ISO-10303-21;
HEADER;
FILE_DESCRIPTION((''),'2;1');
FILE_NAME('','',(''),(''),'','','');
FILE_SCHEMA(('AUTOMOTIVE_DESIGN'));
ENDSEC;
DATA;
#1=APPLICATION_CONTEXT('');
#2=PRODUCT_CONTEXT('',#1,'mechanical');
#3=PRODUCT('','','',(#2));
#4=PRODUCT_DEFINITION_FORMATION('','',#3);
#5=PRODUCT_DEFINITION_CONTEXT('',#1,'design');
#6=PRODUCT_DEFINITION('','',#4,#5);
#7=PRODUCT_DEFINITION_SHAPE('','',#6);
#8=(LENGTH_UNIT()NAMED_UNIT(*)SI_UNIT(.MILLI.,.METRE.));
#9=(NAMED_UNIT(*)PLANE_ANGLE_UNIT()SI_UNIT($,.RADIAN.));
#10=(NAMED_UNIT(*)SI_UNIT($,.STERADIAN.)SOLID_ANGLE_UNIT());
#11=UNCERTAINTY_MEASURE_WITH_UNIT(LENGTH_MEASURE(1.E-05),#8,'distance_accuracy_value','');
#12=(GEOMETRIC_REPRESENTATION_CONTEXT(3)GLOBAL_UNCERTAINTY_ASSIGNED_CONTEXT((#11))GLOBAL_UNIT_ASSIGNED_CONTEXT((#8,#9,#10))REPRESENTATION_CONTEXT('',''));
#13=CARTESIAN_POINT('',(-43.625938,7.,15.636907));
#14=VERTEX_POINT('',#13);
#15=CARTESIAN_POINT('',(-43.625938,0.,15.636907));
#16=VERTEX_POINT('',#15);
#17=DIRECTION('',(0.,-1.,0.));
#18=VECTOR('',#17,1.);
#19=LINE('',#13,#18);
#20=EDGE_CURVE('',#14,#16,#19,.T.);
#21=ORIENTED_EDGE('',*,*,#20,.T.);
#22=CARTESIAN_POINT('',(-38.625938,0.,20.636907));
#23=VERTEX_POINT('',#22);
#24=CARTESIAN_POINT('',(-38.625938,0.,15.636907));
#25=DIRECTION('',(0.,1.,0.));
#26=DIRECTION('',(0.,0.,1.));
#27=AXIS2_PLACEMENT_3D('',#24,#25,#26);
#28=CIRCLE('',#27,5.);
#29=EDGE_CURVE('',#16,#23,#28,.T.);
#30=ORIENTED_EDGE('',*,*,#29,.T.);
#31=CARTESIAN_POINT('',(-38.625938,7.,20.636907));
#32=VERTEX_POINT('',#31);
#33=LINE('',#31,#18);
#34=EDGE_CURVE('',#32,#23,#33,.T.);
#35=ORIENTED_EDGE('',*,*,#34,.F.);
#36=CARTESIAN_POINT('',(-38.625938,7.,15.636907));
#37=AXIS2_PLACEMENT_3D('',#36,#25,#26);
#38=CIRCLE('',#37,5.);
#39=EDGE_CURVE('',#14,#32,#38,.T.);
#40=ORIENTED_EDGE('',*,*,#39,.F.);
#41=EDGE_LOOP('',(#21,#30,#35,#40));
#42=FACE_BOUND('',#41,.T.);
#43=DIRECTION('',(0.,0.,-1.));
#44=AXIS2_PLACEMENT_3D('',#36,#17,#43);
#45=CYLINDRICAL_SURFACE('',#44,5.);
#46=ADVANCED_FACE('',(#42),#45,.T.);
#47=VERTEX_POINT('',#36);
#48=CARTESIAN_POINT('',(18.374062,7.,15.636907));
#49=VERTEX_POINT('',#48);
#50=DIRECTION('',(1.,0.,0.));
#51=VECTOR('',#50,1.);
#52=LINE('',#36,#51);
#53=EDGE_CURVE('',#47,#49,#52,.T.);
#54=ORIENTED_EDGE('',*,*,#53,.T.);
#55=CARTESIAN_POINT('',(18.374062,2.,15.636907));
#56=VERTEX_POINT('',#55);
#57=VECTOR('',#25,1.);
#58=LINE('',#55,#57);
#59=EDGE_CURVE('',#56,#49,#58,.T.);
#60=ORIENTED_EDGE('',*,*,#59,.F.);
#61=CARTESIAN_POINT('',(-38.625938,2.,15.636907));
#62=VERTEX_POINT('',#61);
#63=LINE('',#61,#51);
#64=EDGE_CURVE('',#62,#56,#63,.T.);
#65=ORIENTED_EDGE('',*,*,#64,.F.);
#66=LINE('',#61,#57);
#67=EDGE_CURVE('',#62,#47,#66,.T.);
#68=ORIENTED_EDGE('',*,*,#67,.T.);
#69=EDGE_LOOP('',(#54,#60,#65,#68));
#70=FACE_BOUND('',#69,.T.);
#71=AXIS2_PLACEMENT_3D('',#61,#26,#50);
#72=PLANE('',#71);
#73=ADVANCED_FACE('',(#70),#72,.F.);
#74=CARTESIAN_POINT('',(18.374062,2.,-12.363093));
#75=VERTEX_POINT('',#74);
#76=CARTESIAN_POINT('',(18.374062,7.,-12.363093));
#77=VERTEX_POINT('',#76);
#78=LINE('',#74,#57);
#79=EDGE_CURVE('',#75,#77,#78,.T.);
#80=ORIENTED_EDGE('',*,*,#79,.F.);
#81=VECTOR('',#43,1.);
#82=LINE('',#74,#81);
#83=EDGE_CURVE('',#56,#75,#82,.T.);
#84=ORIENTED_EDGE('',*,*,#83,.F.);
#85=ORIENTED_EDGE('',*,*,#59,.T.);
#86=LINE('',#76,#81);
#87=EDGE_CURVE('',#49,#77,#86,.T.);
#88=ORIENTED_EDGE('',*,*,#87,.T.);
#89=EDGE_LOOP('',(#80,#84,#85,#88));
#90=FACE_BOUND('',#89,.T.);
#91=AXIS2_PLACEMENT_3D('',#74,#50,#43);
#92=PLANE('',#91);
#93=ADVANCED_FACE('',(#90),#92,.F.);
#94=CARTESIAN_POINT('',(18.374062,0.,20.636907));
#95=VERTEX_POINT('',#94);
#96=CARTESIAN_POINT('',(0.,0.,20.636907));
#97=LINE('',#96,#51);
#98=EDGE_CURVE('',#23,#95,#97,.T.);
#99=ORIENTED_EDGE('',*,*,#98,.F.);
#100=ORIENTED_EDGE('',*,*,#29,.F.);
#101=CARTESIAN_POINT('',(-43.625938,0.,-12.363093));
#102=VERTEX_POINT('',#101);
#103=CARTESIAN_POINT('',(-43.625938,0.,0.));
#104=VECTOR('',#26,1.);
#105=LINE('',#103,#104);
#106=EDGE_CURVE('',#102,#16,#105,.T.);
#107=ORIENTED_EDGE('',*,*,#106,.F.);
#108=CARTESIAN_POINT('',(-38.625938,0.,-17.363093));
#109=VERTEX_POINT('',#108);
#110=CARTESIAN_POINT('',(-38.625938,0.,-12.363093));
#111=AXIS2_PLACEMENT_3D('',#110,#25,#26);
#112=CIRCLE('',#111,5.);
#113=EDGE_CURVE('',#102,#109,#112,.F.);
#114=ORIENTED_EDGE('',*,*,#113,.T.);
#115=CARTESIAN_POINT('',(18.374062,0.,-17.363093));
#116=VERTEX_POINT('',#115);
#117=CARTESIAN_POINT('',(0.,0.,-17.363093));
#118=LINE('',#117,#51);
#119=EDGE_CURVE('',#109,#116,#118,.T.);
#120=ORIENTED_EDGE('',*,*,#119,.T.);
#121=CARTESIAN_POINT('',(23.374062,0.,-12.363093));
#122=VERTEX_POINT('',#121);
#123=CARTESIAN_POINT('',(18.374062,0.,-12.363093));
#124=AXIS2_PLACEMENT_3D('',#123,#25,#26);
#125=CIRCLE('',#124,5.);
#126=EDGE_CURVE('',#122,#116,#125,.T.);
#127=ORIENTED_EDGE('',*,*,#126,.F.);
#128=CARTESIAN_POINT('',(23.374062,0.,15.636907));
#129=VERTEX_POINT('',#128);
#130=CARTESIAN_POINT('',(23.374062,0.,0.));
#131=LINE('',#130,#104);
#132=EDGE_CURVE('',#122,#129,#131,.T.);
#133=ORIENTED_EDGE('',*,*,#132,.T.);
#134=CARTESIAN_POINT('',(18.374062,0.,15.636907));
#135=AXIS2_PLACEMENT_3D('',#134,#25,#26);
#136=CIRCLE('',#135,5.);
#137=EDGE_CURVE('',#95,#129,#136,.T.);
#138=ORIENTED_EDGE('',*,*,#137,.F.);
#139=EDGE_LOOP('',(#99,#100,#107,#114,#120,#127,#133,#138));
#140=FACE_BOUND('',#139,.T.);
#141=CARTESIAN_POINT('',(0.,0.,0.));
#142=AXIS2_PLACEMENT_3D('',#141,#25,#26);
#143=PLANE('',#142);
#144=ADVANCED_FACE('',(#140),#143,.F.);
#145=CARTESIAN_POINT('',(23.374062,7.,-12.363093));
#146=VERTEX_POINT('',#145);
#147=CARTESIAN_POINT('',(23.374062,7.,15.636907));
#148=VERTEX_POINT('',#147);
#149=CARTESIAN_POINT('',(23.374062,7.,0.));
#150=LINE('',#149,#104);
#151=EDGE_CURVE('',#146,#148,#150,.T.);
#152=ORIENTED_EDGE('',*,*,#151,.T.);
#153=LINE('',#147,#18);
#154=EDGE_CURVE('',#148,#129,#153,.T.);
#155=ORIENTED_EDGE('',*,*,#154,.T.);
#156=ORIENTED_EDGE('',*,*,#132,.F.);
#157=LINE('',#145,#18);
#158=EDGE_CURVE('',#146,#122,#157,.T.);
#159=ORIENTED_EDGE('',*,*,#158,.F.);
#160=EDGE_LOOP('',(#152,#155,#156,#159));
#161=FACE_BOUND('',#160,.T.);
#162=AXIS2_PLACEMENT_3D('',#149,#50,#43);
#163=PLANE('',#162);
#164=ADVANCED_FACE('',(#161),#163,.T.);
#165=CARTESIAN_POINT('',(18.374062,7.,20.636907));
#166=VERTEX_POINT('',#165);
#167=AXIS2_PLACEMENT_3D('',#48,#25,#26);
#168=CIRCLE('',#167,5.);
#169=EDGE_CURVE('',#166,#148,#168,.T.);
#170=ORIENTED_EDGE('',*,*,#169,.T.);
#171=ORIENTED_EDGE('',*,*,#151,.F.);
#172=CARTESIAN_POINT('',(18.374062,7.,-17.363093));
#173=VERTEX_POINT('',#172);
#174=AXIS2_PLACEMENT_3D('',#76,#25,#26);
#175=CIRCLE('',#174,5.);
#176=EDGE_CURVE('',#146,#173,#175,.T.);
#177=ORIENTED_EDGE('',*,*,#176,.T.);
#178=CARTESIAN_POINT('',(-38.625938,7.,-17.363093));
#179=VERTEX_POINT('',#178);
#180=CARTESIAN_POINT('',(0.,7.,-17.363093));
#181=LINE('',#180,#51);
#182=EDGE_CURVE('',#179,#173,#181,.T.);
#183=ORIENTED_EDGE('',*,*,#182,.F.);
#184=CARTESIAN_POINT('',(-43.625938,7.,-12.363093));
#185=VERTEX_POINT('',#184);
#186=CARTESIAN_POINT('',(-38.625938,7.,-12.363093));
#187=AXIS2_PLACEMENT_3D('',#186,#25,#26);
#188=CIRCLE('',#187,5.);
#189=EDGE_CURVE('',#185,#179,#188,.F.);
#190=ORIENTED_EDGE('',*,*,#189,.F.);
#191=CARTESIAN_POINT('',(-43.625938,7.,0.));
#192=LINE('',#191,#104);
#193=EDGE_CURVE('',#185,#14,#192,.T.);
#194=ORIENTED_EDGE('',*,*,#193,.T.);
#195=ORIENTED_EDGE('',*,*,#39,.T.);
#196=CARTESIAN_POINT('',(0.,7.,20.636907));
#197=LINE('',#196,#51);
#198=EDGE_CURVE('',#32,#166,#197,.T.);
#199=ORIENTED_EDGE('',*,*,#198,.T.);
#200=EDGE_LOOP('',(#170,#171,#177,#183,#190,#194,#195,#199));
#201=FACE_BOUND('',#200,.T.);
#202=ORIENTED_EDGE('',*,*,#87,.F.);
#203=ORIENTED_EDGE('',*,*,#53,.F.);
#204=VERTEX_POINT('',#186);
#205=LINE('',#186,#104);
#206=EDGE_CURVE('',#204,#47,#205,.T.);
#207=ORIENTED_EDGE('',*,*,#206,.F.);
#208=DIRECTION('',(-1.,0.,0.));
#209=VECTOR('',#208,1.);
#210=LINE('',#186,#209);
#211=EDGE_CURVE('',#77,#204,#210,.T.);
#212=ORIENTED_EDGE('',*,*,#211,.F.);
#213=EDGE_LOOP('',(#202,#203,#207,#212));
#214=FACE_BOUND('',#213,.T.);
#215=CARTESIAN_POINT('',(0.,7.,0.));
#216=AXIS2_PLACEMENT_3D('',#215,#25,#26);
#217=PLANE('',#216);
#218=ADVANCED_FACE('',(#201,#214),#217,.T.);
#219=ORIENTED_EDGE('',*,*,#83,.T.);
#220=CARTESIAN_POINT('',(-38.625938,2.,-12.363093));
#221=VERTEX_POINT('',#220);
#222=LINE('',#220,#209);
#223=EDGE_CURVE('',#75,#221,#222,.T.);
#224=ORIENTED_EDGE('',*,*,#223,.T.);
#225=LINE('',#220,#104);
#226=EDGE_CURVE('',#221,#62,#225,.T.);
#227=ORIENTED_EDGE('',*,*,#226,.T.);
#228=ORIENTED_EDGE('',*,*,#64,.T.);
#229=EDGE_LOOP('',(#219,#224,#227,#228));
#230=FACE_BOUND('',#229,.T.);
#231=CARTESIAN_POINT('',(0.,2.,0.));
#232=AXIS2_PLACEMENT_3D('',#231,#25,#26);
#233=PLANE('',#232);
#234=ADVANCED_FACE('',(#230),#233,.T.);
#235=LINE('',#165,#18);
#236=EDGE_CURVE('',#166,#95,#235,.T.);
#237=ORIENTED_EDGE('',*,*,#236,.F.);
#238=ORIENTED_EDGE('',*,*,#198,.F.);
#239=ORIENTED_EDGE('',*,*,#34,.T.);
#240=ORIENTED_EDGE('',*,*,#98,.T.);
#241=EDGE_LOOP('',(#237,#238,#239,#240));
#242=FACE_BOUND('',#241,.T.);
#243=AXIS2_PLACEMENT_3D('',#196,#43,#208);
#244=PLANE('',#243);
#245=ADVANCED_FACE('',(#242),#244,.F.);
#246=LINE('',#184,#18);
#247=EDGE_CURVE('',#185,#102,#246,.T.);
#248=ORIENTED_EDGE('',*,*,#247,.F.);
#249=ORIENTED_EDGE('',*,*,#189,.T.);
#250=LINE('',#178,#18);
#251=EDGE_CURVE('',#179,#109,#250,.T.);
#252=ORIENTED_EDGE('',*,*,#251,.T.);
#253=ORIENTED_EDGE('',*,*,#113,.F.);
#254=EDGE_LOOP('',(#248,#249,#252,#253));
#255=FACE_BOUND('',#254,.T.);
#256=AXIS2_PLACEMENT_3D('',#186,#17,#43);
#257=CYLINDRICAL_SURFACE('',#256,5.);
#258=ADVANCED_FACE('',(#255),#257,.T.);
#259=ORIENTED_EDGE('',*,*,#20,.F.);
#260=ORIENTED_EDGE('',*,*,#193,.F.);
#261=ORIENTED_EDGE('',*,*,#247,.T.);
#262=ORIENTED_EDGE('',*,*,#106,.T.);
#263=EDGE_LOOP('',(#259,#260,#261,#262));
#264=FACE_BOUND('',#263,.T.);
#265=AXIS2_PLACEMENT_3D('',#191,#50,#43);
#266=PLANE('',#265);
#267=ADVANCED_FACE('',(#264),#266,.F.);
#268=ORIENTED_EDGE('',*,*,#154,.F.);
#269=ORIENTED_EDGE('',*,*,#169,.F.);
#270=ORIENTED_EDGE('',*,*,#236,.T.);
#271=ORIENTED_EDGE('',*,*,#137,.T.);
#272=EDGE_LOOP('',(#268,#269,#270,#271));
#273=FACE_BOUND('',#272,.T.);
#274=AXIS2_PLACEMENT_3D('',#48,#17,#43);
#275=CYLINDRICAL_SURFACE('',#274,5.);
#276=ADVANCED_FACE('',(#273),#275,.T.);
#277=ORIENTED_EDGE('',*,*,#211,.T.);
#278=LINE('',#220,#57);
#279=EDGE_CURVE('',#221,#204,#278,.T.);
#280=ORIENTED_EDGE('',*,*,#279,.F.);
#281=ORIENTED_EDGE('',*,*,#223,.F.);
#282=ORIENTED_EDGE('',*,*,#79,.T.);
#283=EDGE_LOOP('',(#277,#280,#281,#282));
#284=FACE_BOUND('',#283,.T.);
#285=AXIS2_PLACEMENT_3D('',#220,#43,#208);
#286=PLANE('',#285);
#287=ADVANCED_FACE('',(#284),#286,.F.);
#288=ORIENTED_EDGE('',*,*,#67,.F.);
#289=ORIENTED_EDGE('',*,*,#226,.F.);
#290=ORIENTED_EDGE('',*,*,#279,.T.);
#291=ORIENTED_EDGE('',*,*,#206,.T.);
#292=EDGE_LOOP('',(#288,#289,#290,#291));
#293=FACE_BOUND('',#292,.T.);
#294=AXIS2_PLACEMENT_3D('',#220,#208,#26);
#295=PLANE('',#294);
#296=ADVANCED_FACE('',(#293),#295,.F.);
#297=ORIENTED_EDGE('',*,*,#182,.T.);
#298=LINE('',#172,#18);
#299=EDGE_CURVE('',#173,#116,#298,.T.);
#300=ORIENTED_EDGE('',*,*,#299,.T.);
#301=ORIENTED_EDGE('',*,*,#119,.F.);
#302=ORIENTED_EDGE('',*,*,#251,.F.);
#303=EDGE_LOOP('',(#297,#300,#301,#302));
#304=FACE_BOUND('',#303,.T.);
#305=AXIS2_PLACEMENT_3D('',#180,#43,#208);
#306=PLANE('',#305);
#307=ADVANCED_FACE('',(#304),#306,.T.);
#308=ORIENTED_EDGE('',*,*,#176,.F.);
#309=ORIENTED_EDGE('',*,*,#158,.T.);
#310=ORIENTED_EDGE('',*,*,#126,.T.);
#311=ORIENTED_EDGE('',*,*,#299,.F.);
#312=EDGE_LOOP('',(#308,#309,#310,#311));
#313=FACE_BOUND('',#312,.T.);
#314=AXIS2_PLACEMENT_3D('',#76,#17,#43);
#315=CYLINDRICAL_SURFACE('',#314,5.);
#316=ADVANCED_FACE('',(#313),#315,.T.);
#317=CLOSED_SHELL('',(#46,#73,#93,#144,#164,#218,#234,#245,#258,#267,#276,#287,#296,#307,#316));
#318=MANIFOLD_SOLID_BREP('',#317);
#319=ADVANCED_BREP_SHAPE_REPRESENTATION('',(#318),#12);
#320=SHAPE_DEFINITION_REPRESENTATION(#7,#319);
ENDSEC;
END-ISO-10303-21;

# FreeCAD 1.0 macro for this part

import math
import FreeCAD as App
import Part
import Sketcher

V = App.Vector


def add_polygon(sketch, points):
    """Adds a closed chain of lines whose ends are joined by coincident constraints."""
    first, n = sketch.GeometryCount, len(points)
    for a, b in zip(points, points[1:] + points[:1]):
        sketch.addGeometry(Part.LineSegment(App.Vector(*a, 0), App.Vector(*b, 0)), False)
    for i in range(n):
        sketch.addConstraint(Sketcher.Constraint("Coincident", first + i, 2, first + (i + 1) % n, 1))

doc = App.newDocument("Part")
params = doc.addObject("Spreadsheet::Sheet", "Params")
for row, (alias, value) in enumerate([
    ("sketch1_radius", "5 mm"),
    ("sketch1_width", "57 mm"),
    ("sketch1_height", "28 mm"),
    ("pad1_length", "7 mm"),
    ("sketch2_width", "57 mm"),
    ("sketch2_height", "28 mm"),
    ("pocket1_length", "5 mm"),
], start=1):
    params.set(f"A{row}", alias)
    params.set(f"B{row}", "=" + value)
    params.setAlias(f"B{row}", alias)

body = doc.addObject("PartDesign::Body", "Body")

# Sketch on XZ plane
sketch1 = body.newObject("Sketcher::SketchObject", "Sketch")
sketch1.AttachmentSupport = (doc.getObject("XZ_Plane"), [""])
sketch1.MapMode = "FlatFace"
sketch1.addGeometry([
    Part.LineSegment(V(-44, -12, 0), V(-44, 16, 0)),  # 0
    Part.ArcOfCircle(Part.Circle(V(-39, 16, 0), V(0, 0, 1), 5), math.radians(90), math.radians(180)),  # 1
    Part.LineSegment(V(-39, 21, 0), V(18, 21, 0)),  # 2
    Part.ArcOfCircle(Part.Circle(V(18, 16, 0), V(0, 0, 1), 5), math.radians(0), math.radians(90)),  # 3
    Part.LineSegment(V(23, 16, 0), V(23, -12, 0)),  # 4
    Part.ArcOfCircle(Part.Circle(V(18, -12, 0), V(0, 0, 1), 5), math.radians(-90), math.radians(0)),  # 5
    Part.LineSegment(V(18, -17, 0), V(-39, -17, 0)),  # 6
    Part.ArcOfCircle(Part.Circle(V(-39, -12, 0), V(0, 0, 1), 5), math.radians(180), math.radians(270)),  # 7
], False)
sketch1.addConstraint([
    Sketcher.Constraint("Tangent", 0, 2, 1, 2),
    Sketcher.Constraint("Tangent", 1, 1, 2, 1),
    Sketcher.Constraint("Tangent", 2, 2, 3, 2),
    Sketcher.Constraint("Tangent", 3, 1, 4, 1),
    Sketcher.Constraint("Tangent", 4, 2, 5, 2),
    Sketcher.Constraint("Tangent", 5, 1, 6, 1),
    Sketcher.Constraint("Tangent", 6, 2, 7, 2),
    Sketcher.Constraint("Tangent", 7, 1, 0, 1),
    Sketcher.Constraint("Vertical", 0),
    Sketcher.Constraint("Horizontal", 2),
    Sketcher.Constraint("Vertical", 4),
    Sketcher.Constraint("Horizontal", 6),
    Sketcher.Constraint("Equal", 1, 3),
    Sketcher.Constraint("Equal", 3, 5),
    Sketcher.Constraint("Equal", 5, 7),
    Sketcher.Constraint("Radius", 1, 5.0),
    Sketcher.Constraint("DistanceX", 2, 1, 2, 2, 57.0),
    Sketcher.Constraint("DistanceY", 0, 1, 0, 2, 28.0),
    Sketcher.Constraint("DistanceX", 1, 3, -1, 1, 38.625938),
    Sketcher.Constraint("DistanceY", -1, 1, 1, 3, 15.636907),
])
sketch1.setExpression("Constraints[15]", "Params.sketch1_radius")
sketch1.setExpression("Constraints[16]", "Params.sketch1_width")
sketch1.setExpression("Constraints[17]", "Params.sketch1_height")
pad1 = body.newObject("PartDesign::Pad", "Pad")
pad1.Profile = sketch1
pad1.setExpression("Length", "Params.pad1_length")
pad1.Reversed = True

# Sketch on XZ plane
sketch2 = body.newObject("Sketcher::SketchObject", "Sketch001")
sketch2.AttachmentSupport = (doc.getObject("XZ_Plane"), [""])
sketch2.MapMode = "FlatFace"
sketch2.AttachmentOffset = App.Placement(V(0, 0, -7), App.Rotation())
add_polygon(sketch2, [(-39, -12), (-39, 16), (18, 16), (18, -12)])  # lines 0-3
sketch2.addConstraint([
    Sketcher.Constraint("Vertical", 0),
    Sketcher.Constraint("Horizontal", 1),
    Sketcher.Constraint("Vertical", 2),
    Sketcher.Constraint("Horizontal", 3),
    Sketcher.Constraint("DistanceX", 1, 1, 1, 2, 57.0),
    Sketcher.Constraint("DistanceY", 0, 1, 0, 2, 28.0),
    Sketcher.Constraint("DistanceX", 0, 2, -1, 1, 38.625938),
    Sketcher.Constraint("DistanceY", -1, 1, 0, 2, 15.636907),
])
sketch2.setExpression("Constraints[8]", "Params.sketch2_width")
sketch2.setExpression("Constraints[9]", "Params.sketch2_height")
pocket1 = body.newObject("PartDesign::Pocket", "Pocket")
pocket1.Profile = sketch2
pocket1.setExpression("Length", "Params.pocket1_length")
pocket1.Reversed = True

doc.recompute()
